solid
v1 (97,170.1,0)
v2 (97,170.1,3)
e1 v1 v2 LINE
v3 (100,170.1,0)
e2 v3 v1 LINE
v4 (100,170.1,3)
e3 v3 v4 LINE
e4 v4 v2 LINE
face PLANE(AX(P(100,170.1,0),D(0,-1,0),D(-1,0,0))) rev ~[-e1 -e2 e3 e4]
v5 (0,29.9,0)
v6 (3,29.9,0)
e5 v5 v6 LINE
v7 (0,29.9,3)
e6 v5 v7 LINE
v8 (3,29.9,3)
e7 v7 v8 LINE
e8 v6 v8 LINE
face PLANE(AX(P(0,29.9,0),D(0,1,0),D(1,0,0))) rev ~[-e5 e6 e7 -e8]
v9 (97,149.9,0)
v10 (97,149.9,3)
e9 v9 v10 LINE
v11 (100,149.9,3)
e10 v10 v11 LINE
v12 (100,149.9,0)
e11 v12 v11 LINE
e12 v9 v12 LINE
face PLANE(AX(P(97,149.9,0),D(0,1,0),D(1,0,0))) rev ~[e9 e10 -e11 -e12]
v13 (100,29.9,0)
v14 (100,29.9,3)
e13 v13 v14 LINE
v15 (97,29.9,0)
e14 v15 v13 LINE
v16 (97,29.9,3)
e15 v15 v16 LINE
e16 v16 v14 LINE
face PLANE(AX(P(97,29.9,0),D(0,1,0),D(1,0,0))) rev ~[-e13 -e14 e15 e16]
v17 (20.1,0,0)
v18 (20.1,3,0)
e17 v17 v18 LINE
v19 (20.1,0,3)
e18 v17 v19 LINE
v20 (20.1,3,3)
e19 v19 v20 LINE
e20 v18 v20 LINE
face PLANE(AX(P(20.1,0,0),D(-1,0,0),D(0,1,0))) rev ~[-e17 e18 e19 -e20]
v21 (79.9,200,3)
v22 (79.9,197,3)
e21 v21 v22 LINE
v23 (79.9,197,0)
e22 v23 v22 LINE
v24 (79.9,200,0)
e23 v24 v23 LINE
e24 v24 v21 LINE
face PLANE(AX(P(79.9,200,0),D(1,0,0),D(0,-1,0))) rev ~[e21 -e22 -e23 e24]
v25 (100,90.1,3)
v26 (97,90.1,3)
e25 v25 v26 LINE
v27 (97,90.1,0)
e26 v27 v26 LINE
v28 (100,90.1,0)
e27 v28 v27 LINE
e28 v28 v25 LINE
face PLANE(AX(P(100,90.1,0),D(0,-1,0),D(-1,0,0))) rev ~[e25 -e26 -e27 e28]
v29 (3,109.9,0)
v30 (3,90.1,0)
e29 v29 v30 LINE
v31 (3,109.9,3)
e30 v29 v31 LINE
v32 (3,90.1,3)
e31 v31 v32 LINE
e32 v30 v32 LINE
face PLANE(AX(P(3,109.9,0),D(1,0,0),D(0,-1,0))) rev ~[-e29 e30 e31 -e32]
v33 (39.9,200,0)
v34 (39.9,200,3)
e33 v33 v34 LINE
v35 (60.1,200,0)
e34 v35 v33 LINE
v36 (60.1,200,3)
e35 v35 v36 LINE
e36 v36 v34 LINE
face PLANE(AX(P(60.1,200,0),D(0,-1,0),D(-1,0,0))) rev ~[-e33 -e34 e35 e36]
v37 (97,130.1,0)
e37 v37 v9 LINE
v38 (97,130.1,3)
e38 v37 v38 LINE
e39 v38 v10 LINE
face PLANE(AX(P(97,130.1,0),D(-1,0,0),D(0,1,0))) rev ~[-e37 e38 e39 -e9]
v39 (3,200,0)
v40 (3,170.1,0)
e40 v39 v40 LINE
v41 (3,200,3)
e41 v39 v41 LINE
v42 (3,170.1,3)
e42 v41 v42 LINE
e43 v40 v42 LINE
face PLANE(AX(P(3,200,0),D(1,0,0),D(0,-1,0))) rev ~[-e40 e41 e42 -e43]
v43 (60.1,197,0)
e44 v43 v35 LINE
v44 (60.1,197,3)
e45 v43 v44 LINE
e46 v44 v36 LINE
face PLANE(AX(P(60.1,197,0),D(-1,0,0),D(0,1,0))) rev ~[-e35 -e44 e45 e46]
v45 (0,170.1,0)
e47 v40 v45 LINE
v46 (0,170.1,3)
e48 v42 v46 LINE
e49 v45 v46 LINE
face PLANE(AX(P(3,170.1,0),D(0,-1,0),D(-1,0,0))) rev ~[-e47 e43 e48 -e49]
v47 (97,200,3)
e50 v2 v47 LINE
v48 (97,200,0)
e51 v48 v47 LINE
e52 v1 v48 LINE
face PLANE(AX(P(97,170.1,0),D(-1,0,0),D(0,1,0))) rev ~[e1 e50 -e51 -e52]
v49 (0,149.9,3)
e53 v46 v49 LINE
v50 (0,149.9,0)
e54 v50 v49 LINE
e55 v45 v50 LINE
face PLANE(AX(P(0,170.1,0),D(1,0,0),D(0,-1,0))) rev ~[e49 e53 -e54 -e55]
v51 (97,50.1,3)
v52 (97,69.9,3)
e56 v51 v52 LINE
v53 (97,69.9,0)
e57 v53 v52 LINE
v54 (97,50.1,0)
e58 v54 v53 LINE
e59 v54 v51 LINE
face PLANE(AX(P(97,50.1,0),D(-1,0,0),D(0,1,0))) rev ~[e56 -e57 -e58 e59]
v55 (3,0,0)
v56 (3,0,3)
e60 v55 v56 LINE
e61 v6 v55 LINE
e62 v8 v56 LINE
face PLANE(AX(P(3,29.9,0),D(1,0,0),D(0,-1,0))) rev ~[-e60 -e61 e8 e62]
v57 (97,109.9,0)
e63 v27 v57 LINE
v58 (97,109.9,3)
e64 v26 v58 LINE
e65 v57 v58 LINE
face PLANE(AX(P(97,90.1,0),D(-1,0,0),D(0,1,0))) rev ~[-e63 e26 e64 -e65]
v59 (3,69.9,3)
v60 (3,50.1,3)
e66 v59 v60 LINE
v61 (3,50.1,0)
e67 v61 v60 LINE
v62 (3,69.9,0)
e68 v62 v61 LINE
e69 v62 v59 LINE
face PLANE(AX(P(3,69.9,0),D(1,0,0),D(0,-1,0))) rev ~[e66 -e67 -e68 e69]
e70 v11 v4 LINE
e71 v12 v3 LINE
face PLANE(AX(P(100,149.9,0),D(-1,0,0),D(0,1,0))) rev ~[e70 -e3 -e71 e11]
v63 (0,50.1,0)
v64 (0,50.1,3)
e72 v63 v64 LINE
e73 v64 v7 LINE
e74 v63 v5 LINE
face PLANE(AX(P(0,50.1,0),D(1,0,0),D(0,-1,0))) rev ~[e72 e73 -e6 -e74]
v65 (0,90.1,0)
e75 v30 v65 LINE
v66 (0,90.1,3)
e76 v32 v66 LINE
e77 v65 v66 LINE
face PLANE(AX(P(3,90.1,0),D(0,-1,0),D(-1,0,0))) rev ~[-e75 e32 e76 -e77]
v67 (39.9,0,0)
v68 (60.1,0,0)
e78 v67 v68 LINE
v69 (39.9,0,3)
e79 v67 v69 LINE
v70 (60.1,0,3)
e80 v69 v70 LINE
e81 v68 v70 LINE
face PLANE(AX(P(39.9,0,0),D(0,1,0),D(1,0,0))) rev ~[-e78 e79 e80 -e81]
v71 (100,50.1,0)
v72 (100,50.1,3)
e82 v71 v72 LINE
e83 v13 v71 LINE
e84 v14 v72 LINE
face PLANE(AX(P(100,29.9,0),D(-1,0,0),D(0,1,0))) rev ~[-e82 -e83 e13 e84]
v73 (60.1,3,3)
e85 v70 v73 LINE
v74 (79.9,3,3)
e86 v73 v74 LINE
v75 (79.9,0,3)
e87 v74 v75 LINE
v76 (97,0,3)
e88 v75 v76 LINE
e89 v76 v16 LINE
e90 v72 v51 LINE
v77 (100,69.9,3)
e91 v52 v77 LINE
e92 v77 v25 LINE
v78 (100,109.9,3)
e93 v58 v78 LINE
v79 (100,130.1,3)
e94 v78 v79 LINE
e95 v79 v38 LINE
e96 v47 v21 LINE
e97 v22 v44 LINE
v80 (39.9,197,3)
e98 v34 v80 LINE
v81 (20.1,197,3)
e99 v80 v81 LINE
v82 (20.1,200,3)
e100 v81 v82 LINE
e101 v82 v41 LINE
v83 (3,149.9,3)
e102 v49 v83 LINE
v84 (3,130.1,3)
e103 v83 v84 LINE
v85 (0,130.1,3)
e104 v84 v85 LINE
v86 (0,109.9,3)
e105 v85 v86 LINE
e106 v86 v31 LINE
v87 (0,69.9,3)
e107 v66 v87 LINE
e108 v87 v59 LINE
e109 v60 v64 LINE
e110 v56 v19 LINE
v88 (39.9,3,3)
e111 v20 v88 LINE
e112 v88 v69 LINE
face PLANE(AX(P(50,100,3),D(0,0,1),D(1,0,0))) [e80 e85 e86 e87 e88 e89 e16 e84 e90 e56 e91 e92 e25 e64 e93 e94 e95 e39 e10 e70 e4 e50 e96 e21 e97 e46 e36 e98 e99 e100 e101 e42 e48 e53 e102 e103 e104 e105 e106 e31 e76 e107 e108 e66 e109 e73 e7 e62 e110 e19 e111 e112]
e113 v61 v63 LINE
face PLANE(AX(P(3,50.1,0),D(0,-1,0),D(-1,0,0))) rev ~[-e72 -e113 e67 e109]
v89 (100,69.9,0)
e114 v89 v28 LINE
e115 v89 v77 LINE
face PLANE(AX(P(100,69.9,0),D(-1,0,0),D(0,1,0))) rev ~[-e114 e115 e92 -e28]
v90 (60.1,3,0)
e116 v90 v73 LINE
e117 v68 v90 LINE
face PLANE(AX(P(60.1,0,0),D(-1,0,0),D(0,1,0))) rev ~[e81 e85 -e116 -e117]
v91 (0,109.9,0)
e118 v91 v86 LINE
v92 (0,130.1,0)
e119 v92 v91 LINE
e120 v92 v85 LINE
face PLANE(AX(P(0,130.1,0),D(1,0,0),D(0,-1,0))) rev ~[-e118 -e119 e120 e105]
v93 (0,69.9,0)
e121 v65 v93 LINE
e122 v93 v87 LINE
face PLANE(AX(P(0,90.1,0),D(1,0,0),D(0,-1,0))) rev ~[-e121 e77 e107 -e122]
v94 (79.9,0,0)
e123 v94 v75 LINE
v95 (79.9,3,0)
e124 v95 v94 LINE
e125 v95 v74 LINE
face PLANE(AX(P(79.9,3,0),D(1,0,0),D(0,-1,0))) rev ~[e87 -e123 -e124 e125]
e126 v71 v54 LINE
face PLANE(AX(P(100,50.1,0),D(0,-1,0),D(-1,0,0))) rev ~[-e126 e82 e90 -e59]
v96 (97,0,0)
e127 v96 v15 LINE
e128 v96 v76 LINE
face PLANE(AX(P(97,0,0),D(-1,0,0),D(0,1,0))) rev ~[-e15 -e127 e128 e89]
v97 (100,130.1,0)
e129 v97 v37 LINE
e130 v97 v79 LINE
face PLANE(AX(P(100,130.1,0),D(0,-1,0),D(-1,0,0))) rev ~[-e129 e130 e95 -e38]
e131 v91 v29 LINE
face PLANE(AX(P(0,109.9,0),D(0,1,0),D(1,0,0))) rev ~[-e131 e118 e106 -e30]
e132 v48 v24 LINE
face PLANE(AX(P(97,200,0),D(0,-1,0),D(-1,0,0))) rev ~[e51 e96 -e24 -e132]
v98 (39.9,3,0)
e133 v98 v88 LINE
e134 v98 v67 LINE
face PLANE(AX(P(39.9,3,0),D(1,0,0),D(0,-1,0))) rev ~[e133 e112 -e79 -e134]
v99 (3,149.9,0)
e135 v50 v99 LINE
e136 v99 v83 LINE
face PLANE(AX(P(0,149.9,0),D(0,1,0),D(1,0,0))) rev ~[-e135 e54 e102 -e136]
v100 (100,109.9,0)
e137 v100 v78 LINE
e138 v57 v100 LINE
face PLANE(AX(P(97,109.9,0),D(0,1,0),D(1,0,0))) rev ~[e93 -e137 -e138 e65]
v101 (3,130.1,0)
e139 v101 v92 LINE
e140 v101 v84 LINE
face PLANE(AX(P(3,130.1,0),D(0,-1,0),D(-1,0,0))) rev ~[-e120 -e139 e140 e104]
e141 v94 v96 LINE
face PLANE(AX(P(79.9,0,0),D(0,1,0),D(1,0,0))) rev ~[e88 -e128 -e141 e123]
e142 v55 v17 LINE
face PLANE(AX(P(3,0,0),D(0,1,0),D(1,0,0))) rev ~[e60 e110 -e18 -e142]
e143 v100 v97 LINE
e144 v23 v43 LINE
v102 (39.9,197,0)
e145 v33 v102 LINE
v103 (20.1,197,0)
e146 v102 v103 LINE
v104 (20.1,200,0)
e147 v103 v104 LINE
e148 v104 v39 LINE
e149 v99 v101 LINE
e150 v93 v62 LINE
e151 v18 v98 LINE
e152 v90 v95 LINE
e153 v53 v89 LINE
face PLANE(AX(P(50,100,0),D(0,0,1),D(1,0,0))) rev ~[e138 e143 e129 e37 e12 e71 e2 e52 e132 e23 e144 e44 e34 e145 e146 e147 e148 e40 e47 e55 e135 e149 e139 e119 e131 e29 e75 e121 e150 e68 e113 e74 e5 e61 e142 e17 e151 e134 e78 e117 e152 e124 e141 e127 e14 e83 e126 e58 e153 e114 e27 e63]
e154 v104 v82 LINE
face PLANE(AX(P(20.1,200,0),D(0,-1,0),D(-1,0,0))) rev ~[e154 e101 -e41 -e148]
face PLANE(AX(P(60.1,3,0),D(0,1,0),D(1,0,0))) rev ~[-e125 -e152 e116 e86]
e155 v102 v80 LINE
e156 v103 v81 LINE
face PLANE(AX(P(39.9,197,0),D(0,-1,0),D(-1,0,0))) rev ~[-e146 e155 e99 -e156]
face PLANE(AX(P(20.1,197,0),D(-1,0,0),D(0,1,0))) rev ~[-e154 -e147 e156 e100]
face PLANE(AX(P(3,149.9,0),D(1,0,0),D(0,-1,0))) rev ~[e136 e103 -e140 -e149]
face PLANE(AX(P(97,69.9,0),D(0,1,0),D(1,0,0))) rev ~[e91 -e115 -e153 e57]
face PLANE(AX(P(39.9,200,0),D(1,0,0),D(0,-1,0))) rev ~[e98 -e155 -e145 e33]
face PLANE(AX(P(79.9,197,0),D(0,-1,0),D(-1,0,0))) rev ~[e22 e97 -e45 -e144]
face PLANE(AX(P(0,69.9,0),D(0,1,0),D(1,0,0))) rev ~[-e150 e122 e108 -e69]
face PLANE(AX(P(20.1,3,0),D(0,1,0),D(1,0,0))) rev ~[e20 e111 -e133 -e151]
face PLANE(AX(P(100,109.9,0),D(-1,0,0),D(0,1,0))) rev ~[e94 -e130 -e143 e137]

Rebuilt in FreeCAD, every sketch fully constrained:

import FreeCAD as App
import Part
import Sketcher
from FreeCAD import Vector
Q = App.Units.Quantity

doc = App.newDocument("Part")
body = doc.addObject("PartDesign::Body", "Body")

sketch1 = body.newObject("Sketcher::SketchObject", "Sketch")
sketch1.AttachmentSupport = (doc.getObject("XY_Plane"), [""])
sketch1.MapMode = "FlatFace"
sketch1.addGeometry([
    Part.LineSegment(Vector(97, 109.9, 0), Vector(100, 109.9, 0)),
    Part.LineSegment(Vector(100, 109.9, 0), Vector(100, 130.1, 0)),
    Part.LineSegment(Vector(100, 130.1, 0), Vector(97, 130.1, 0)),
    Part.LineSegment(Vector(97, 130.1, 0), Vector(97, 149.9, 0)),
    Part.LineSegment(Vector(97, 149.9, 0), Vector(100, 149.9, 0)),
    Part.LineSegment(Vector(100, 149.9, 0), Vector(100, 170.1, 0)),
    Part.LineSegment(Vector(100, 170.1, 0), Vector(97, 170.1, 0)),
    Part.LineSegment(Vector(97, 170.1, 0), Vector(97, 200, 0)),
    Part.LineSegment(Vector(97, 200, 0), Vector(79.9, 200, 0)),
    Part.LineSegment(Vector(79.9, 200, 0), Vector(79.9, 197, 0)),
    Part.LineSegment(Vector(79.9, 197, 0), Vector(60.1, 197, 0)),
    Part.LineSegment(Vector(60.1, 197, 0), Vector(60.1, 200, 0)),
    Part.LineSegment(Vector(60.1, 200, 0), Vector(39.9, 200, 0)),
    Part.LineSegment(Vector(39.9, 200, 0), Vector(39.9, 197, 0)),
    Part.LineSegment(Vector(39.9, 197, 0), Vector(20.1, 197, 0)),
    Part.LineSegment(Vector(20.1, 197, 0), Vector(20.1, 200, 0)),
    Part.LineSegment(Vector(20.1, 200, 0), Vector(3, 200, 0)),
    Part.LineSegment(Vector(3, 200, 0), Vector(3, 170.1, 0)),
    Part.LineSegment(Vector(3, 170.1, 0), Vector(0, 170.1, 0)),
    Part.LineSegment(Vector(0, 170.1, 0), Vector(0, 149.9, 0)),
    Part.LineSegment(Vector(0, 149.9, 0), Vector(3, 149.9, 0)),
    Part.LineSegment(Vector(3, 149.9, 0), Vector(3, 130.1, 0)),
    Part.LineSegment(Vector(3, 130.1, 0), Vector(0, 130.1, 0)),
    Part.LineSegment(Vector(0, 130.1, 0), Vector(0, 109.9, 0)),
    Part.LineSegment(Vector(0, 109.9, 0), Vector(3, 109.9, 0)),
    Part.LineSegment(Vector(3, 109.9, 0), Vector(3, 90.1, 0)),
    Part.LineSegment(Vector(3, 90.1, 0), Vector(0, 90.1, 0)),
    Part.LineSegment(Vector(0, 90.1, 0), Vector(0, 69.9, 0)),
    Part.LineSegment(Vector(0, 69.9, 0), Vector(3, 69.9, 0)),
    Part.LineSegment(Vector(3, 69.9, 0), Vector(3, 50.1, 0)),
    Part.LineSegment(Vector(3, 50.1, 0), Vector(0, 50.1, 0)),
    Part.LineSegment(Vector(0, 50.1, 0), Vector(0, 29.9, 0)),
    Part.LineSegment(Vector(0, 29.9, 0), Vector(3, 29.9, 0)),
    Part.LineSegment(Vector(3, 29.9, 0), Vector(3, 0, 0)),
    Part.LineSegment(Vector(3, 0, 0), Vector(20.1, 0, 0)),
    Part.LineSegment(Vector(20.1, 0, 0), Vector(20.1, 3, 0)),
    Part.LineSegment(Vector(20.1, 3, 0), Vector(39.9, 3, 0)),
    Part.LineSegment(Vector(39.9, 3, 0), Vector(39.9, 0, 0)),
    Part.LineSegment(Vector(39.9, 0, 0), Vector(60.1, 0, 0)),
    Part.LineSegment(Vector(60.1, 0, 0), Vector(60.1, 3, 0)),
    Part.LineSegment(Vector(60.1, 3, 0), Vector(79.9, 3, 0)),
    Part.LineSegment(Vector(79.9, 3, 0), Vector(79.9, 0, 0)),
    Part.LineSegment(Vector(79.9, 0, 0), Vector(97, 0, 0)),
    Part.LineSegment(Vector(97, 0, 0), Vector(97, 29.9, 0)),
    Part.LineSegment(Vector(97, 29.9, 0), Vector(100, 29.9, 0)),
    Part.LineSegment(Vector(100, 29.9, 0), Vector(100, 50.1, 0)),
    Part.LineSegment(Vector(100, 50.1, 0), Vector(97, 50.1, 0)),
    Part.LineSegment(Vector(97, 50.1, 0), Vector(97, 69.9, 0)),
    Part.LineSegment(Vector(97, 69.9, 0), Vector(100, 69.9, 0)),
    Part.LineSegment(Vector(100, 69.9, 0), Vector(100, 90.1, 0)),
    Part.LineSegment(Vector(100, 90.1, 0), Vector(97, 90.1, 0)),
    Part.LineSegment(Vector(97, 90.1, 0), Vector(97, 109.9, 0)),
], False)
sketch1.addConstraint([
    Sketcher.Constraint("Coincident", 0, 2, 1, 1),
    Sketcher.Constraint("Coincident", 1, 2, 2, 1),
    Sketcher.Constraint("Coincident", 2, 2, 3, 1),
    Sketcher.Constraint("Coincident", 3, 2, 4, 1),
    Sketcher.Constraint("Coincident", 4, 2, 5, 1),
    Sketcher.Constraint("Coincident", 5, 2, 6, 1),
    Sketcher.Constraint("Coincident", 6, 2, 7, 1),
    Sketcher.Constraint("Coincident", 7, 2, 8, 1),
    Sketcher.Constraint("Coincident", 8, 2, 9, 1),
    Sketcher.Constraint("Coincident", 9, 2, 10, 1),
    Sketcher.Constraint("Coincident", 10, 2, 11, 1),
    Sketcher.Constraint("Coincident", 11, 2, 12, 1),
    Sketcher.Constraint("Coincident", 12, 2, 13, 1),
    Sketcher.Constraint("Coincident", 13, 2, 14, 1),
    Sketcher.Constraint("Coincident", 14, 2, 15, 1),
    Sketcher.Constraint("Coincident", 15, 2, 16, 1),
    Sketcher.Constraint("Coincident", 16, 2, 17, 1),
    Sketcher.Constraint("Coincident", 17, 2, 18, 1),
    Sketcher.Constraint("Coincident", 18, 2, 19, 1),
    Sketcher.Constraint("Coincident", 19, 2, 20, 1),
    Sketcher.Constraint("Coincident", 20, 2, 21, 1),
    Sketcher.Constraint("Coincident", 21, 2, 22, 1),
    Sketcher.Constraint("Coincident", 22, 2, 23, 1),
    Sketcher.Constraint("Coincident", 23, 2, 24, 1),
    Sketcher.Constraint("Coincident", 24, 2, 25, 1),
    Sketcher.Constraint("Coincident", 25, 2, 26, 1),
    Sketcher.Constraint("Coincident", 26, 2, 27, 1),
    Sketcher.Constraint("Coincident", 27, 2, 28, 1),
    Sketcher.Constraint("Coincident", 28, 2, 29, 1),
    Sketcher.Constraint("Coincident", 29, 2, 30, 1),
    Sketcher.Constraint("Coincident", 30, 2, 31, 1),
    Sketcher.Constraint("Coincident", 31, 2, 32, 1),
    Sketcher.Constraint("Coincident", 32, 2, 33, 1),
    Sketcher.Constraint("Coincident", 33, 2, 34, 1),
    Sketcher.Constraint("Coincident", 34, 2, 35, 1),
    Sketcher.Constraint("Coincident", 35, 2, 36, 1),
    Sketcher.Constraint("Coincident", 36, 2, 37, 1),
    Sketcher.Constraint("Coincident", 37, 2, 38, 1),
    Sketcher.Constraint("Coincident", 38, 2, 39, 1),
    Sketcher.Constraint("Coincident", 39, 2, 40, 1),
    Sketcher.Constraint("Coincident", 40, 2, 41, 1),
    Sketcher.Constraint("Coincident", 41, 2, 42, 1),
    Sketcher.Constraint("Coincident", 42, 2, 43, 1),
    Sketcher.Constraint("Coincident", 43, 2, 44, 1),
    Sketcher.Constraint("Coincident", 44, 2, 45, 1),
    Sketcher.Constraint("Coincident", 45, 2, 46, 1),
    Sketcher.Constraint("Coincident", 46, 2, 47, 1),
    Sketcher.Constraint("Coincident", 47, 2, 48, 1),
    Sketcher.Constraint("Coincident", 48, 2, 49, 1),
    Sketcher.Constraint("Coincident", 49, 2, 50, 1),
    Sketcher.Constraint("Coincident", 50, 2, 51, 1),
    Sketcher.Constraint("Coincident", 51, 2, 0, 1),
    Sketcher.Constraint("Horizontal", 0),
    Sketcher.Constraint("Vertical", 1),
    Sketcher.Constraint("Horizontal", 2),
    Sketcher.Constraint("Vertical", 3),
    Sketcher.Constraint("Horizontal", 4),
    Sketcher.Constraint("Vertical", 5),
    Sketcher.Constraint("Horizontal", 6),
    Sketcher.Constraint("Vertical", 7),
    Sketcher.Constraint("Horizontal", 8),
    Sketcher.Constraint("Vertical", 9),
    Sketcher.Constraint("Horizontal", 10),
    Sketcher.Constraint("Vertical", 11),
    Sketcher.Constraint("Horizontal", 12),
    Sketcher.Constraint("Vertical", 13),
    Sketcher.Constraint("Horizontal", 14),
    Sketcher.Constraint("Vertical", 15),
    Sketcher.Constraint("Horizontal", 16),
    Sketcher.Constraint("Vertical", 17),
    Sketcher.Constraint("Horizontal", 18),
    Sketcher.Constraint("Vertical", 19),
    Sketcher.Constraint("Horizontal", 20),
    Sketcher.Constraint("Vertical", 21),
    Sketcher.Constraint("Horizontal", 22),
    Sketcher.Constraint("Vertical", 23),
    Sketcher.Constraint("Horizontal", 24),
    Sketcher.Constraint("Vertical", 25),
    Sketcher.Constraint("Horizontal", 26),
    Sketcher.Constraint("Vertical", 27),
    Sketcher.Constraint("Horizontal", 28),
    Sketcher.Constraint("Vertical", 29),
    Sketcher.Constraint("Horizontal", 30),
    Sketcher.Constraint("Vertical", 31),
    Sketcher.Constraint("Horizontal", 32),
    Sketcher.Constraint("Vertical", 33),
    Sketcher.Constraint("Horizontal", 34),
    Sketcher.Constraint("Vertical", 35),
    Sketcher.Constraint("Horizontal", 36),
    Sketcher.Constraint("Vertical", 37),
    Sketcher.Constraint("Horizontal", 38),
    Sketcher.Constraint("Vertical", 39),
    Sketcher.Constraint("Horizontal", 40),
    Sketcher.Constraint("Vertical", 41),
    Sketcher.Constraint("Horizontal", 42),
    Sketcher.Constraint("Vertical", 43),
    Sketcher.Constraint("Horizontal", 44),
    Sketcher.Constraint("Vertical", 45),
    Sketcher.Constraint("Horizontal", 46),
    Sketcher.Constraint("Vertical", 47),
    Sketcher.Constraint("Horizontal", 48),
    Sketcher.Constraint("Vertical", 49),
    Sketcher.Constraint("Horizontal", 50),
    Sketcher.Constraint("Vertical", 51),
    Sketcher.Constraint("PointOnObject", 18, 2, -2),
    Sketcher.Constraint("PointOnObject", 22, 2, -2),
    Sketcher.Constraint("PointOnObject", 26, 2, -2),
    Sketcher.Constraint("PointOnObject", 30, 2, -2),
    Sketcher.Constraint("PointOnObject", 33, 2, -1),
    Sketcher.Constraint("PointOnObject", 37, 2, -1),
    Sketcher.Constraint("PointOnObject", 41, 2, -1),
    Sketcher.Constraint("Horizontal", 8, 2, 11, 2),
    Sketcher.Constraint("Horizontal", 10, 2, 13, 2),
    Sketcher.Constraint("Horizontal", 12, 2, 15, 2),
    Sketcher.Constraint("Horizontal", 6, 2, 17, 2),
    Sketcher.Constraint("Horizontal", 4, 2, 19, 2),
    Sketcher.Constraint("Horizontal", 2, 2, 21, 2),
    Sketcher.Constraint("Horizontal", 0, 2, 23, 2),
    Sketcher.Constraint("Horizontal", 36, 2, 39, 2),
    Sketcher.Constraint("Horizontal", 32, 2, 43, 2),
    Sketcher.Constraint("Horizontal", 30, 2, 45, 2),
    Sketcher.Constraint("Horizontal", 28, 2, 47, 2),
    Sketcher.Constraint("Horizontal", 26, 2, 49, 2),
    Sketcher.Constraint("Vertical", 1, 2, 4, 2),
    Sketcher.Constraint("Vertical", 3, 2, 6, 2),
    Sketcher.Constraint("Vertical", 17, 2, 20, 2),
    Sketcher.Constraint("Vertical", 21, 2, 24, 2),
    Sketcher.Constraint("Vertical", 25, 2, 28, 2),
    Sketcher.Constraint("Vertical", 29, 2, 32, 2),
    Sketcher.Constraint("Vertical", 15, 2, 34, 2),
    Sketcher.Constraint("Vertical", 13, 2, 36, 2),
    Sketcher.Constraint("Vertical", 11, 2, 38, 2),
    Sketcher.Constraint("Vertical", 9, 2, 40, 2),
    Sketcher.Constraint("Vertical", 7, 2, 42, 2),
    Sketcher.Constraint("Vertical", 5, 2, 44, 2),
    Sketcher.Constraint("Vertical", 43, 2, 46, 2),
    Sketcher.Constraint("Vertical", 45, 2, 48, 2),
    Sketcher.Constraint("Vertical", 47, 2, 50, 2),
    Sketcher.Constraint("Equal", 10, 14),
    Sketcher.Constraint("Equal", 8, 16),
    Sketcher.Constraint("Equal", 6, 18),
    Sketcher.Constraint("Equal", 38, 1),
    Sketcher.Constraint("Equal", 40, 3),
    Sketcher.Constraint("Equal", 1, 5),
    Sketcher.Constraint("Equal", 50, 9),
    Sketcher.Constraint("Equal", 21, 25),
    Sketcher.Constraint("Equal", 23, 27),
    Sketcher.Constraint("Equal", 25, 29),
    Sketcher.Constraint("Equal", 27, 31),
    Sketcher.Constraint("Equal", 17, 33),
    Sketcher.Constraint("Equal", 15, 35),
    Sketcher.Constraint("DistanceX", 0, 1, 0, 2, Q("3 mm")),
    Sketcher.Constraint("DistanceX", 8, 2, 8, 1, Q("17.1 mm")),
    Sketcher.Constraint("DistanceX", 10, 2, 10, 1, Q("19.8 mm")),
    Sketcher.Constraint("DistanceX", 12, 2, 12, 1, Q("20.2 mm")),
    Sketcher.Constraint("DistanceY", 7, 1, 7, 2, Q("29.9 mm")),
])
pad1 = body.newObject("PartDesign::Pad", "Pad")
pad1.Profile = sketch1
pad1.Length = 3

doc.recompute()
